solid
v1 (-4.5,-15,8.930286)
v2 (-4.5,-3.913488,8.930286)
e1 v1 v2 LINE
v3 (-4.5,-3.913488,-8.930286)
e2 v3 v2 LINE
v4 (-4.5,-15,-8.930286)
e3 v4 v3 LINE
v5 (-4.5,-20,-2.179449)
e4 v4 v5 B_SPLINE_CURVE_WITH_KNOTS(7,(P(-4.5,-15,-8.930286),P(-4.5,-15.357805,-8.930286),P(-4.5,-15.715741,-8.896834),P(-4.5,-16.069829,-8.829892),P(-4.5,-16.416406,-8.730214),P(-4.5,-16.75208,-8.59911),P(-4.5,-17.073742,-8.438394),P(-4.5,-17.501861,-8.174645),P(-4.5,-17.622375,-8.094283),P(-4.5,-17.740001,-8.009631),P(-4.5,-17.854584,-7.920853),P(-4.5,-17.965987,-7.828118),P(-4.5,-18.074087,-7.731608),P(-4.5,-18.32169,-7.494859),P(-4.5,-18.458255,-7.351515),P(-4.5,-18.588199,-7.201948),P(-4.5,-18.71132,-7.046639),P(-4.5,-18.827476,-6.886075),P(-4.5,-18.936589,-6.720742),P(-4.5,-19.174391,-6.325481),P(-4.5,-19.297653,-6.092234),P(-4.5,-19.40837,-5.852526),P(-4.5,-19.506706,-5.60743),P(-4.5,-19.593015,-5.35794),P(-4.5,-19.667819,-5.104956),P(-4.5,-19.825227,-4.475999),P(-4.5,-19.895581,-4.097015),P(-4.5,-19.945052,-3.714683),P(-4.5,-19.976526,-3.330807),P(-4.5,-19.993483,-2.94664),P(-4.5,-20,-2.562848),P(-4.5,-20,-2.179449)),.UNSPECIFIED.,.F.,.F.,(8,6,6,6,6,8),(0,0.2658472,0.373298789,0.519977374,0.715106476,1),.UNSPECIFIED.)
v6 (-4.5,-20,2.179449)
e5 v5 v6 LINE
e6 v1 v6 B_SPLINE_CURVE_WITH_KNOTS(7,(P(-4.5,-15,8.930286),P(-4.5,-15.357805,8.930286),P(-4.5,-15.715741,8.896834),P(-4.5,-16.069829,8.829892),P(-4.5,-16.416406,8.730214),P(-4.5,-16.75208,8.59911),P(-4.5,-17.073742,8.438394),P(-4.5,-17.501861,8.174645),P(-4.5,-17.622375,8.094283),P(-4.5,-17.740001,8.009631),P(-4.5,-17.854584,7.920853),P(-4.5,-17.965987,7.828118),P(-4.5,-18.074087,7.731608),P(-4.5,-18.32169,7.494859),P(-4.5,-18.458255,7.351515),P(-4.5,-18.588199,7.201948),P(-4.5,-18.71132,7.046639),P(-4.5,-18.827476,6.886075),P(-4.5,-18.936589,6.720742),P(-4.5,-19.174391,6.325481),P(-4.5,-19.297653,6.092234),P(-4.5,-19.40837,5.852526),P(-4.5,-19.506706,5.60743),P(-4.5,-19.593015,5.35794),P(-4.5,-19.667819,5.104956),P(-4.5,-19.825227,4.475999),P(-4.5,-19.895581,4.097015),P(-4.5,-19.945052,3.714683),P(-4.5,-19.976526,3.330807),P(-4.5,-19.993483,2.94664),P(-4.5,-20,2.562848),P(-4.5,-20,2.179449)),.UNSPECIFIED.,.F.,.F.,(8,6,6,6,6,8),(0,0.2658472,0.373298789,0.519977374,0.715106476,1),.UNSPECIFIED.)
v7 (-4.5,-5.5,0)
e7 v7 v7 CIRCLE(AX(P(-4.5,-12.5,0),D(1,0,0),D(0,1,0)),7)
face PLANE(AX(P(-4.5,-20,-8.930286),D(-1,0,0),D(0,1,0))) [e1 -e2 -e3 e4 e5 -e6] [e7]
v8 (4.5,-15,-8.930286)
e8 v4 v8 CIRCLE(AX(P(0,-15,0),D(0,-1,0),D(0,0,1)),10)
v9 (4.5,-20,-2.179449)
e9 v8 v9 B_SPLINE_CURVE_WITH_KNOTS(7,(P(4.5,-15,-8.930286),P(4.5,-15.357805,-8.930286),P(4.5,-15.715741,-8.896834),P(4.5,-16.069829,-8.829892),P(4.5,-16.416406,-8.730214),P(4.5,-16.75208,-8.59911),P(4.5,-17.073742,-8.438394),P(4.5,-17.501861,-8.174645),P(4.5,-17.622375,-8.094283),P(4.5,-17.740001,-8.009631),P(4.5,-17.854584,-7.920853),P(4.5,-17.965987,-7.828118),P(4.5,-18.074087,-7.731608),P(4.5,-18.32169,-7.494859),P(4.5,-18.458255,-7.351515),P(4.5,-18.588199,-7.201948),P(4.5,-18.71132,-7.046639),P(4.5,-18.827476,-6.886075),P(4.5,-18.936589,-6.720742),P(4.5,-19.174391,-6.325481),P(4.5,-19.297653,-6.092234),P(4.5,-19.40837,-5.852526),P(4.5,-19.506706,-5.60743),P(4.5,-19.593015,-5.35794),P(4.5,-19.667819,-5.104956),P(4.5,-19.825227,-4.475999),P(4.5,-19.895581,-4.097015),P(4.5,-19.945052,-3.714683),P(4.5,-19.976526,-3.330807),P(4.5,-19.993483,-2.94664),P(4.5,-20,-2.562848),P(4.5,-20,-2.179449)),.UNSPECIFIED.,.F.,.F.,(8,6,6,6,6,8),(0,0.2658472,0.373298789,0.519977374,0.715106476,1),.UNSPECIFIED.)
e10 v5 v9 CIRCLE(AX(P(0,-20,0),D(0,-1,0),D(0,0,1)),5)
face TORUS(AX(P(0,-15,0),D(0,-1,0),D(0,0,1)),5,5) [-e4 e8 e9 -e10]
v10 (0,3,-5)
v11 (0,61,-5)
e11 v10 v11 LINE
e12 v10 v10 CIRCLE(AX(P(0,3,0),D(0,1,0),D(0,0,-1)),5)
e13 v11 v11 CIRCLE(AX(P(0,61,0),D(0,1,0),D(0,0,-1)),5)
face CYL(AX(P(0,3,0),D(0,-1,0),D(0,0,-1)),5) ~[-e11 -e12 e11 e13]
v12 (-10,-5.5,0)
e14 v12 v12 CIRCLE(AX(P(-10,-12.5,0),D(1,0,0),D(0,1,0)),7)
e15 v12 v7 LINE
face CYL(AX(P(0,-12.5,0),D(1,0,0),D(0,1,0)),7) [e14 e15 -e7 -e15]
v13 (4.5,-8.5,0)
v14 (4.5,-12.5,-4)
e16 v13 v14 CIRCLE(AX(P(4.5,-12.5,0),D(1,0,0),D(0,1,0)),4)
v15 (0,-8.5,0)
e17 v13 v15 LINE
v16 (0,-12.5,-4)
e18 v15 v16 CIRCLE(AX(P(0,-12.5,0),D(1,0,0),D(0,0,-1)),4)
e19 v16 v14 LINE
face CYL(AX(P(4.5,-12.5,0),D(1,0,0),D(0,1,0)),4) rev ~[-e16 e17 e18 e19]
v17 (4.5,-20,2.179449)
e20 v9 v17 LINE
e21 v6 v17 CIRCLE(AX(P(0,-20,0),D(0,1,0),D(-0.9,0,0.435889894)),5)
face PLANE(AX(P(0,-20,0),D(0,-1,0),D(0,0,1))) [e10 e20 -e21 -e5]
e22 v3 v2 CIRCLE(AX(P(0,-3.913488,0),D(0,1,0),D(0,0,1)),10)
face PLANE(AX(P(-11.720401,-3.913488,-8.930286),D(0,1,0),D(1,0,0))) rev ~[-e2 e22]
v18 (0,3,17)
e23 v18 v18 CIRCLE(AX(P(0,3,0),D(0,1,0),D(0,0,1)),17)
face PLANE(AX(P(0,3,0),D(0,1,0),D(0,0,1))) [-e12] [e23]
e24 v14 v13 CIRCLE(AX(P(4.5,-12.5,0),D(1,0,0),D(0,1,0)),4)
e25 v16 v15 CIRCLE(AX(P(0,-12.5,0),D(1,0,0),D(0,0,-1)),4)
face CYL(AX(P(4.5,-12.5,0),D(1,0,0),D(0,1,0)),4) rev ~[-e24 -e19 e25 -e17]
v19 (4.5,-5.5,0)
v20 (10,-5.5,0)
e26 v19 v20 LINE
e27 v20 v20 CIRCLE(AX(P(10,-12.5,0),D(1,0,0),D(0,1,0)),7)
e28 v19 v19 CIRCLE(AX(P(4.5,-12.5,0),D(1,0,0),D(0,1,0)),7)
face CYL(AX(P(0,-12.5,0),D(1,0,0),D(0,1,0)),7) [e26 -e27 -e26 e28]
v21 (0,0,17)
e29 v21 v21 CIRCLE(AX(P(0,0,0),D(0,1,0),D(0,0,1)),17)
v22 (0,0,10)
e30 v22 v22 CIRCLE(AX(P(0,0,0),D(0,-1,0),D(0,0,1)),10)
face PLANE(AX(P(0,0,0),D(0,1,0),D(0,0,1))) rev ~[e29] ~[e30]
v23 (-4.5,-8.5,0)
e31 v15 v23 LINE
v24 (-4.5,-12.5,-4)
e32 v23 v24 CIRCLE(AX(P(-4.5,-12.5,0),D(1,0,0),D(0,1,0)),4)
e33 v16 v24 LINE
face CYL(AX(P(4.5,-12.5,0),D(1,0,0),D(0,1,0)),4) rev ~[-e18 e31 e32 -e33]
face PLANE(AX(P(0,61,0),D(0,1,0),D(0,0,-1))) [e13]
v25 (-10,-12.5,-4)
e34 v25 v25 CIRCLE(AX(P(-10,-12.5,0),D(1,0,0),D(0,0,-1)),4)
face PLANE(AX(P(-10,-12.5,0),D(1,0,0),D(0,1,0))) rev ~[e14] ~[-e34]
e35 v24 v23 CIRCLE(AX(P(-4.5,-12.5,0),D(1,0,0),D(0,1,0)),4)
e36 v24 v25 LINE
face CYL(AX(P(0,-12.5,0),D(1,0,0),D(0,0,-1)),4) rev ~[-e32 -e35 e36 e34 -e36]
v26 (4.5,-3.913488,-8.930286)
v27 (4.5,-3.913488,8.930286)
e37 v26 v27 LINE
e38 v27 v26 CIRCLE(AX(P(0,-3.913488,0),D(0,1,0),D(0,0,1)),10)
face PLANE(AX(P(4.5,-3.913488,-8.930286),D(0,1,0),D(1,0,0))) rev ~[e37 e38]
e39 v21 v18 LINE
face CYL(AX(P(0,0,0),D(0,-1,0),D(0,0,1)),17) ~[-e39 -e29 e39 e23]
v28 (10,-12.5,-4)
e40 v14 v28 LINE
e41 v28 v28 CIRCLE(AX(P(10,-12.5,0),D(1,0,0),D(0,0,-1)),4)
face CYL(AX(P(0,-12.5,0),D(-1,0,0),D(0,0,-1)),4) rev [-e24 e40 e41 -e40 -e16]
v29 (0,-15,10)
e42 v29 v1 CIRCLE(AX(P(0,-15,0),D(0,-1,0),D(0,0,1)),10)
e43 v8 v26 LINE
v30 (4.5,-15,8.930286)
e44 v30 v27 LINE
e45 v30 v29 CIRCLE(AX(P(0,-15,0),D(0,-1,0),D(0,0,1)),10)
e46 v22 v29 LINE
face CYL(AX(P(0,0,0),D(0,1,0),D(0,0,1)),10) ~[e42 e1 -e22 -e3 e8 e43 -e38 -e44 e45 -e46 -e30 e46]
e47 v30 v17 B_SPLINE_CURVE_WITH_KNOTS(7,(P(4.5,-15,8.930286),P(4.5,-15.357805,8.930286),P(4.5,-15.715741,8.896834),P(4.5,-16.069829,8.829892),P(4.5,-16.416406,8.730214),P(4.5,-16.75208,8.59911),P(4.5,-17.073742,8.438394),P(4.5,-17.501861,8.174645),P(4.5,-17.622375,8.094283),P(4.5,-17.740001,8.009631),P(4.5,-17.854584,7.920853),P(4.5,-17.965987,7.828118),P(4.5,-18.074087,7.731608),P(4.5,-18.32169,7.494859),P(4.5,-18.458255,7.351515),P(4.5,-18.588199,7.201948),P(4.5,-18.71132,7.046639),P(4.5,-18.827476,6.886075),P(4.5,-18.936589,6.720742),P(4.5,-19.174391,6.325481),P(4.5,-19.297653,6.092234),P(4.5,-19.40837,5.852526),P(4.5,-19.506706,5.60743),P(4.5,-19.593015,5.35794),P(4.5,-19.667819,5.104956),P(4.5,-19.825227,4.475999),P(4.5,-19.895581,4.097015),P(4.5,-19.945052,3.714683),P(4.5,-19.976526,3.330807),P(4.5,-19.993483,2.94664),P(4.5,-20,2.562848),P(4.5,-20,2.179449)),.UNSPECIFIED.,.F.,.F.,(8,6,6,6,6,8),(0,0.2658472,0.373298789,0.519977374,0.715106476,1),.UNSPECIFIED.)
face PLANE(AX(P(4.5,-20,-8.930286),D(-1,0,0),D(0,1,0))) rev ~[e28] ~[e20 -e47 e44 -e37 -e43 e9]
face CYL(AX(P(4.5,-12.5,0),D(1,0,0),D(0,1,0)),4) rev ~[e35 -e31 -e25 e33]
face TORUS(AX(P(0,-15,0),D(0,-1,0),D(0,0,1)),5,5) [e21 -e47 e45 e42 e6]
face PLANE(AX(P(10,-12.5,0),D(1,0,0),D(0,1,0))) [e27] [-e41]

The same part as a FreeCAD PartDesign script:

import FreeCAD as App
import Part
import Sketcher
from FreeCAD import Vector
Q = App.Units.Quantity


def edges_at(feature, points):
    """Names of the edges that pass closest to the given points."""
    edges = feature.Shape.Edges
    near = lambda p: min(range(len(edges)), key=lambda i: edges[i].distToShape(Part.Vertex(*p))[0])
    return sorted({f"Edge{near(p) + 1}" for p in points})


def add_polygon(sketch, points):
    """Adds a closed chain of lines whose ends are joined by coincident constraints."""
    first, n = sketch.GeometryCount, len(points)
    for a, b in zip(points, points[1:] + points[:1]):
        sketch.addGeometry(Part.LineSegment(App.Vector(*a, 0), App.Vector(*b, 0)), False)
    for i in range(n):
        sketch.addConstraint(Sketcher.Constraint("Coincident", first + i, 2, first + (i + 1) % n, 1))

doc = App.newDocument("Part")
body = doc.addObject("PartDesign::Body", "Body")

# Sketch on XZ plane
sketch1 = body.newObject("Sketcher::SketchObject", "Sketch")
sketch1.AttachmentSupport = (doc.getObject("XZ_Plane"), [""])
sketch1.MapMode = "FlatFace"
sketch1.addGeometry(Part.Circle(Vector(0, 0, 0), Vector(0, 0, 1), 17), False)
sketch1.addConstraint([
    Sketcher.Constraint("Coincident", 0, 3, -1, 1),
    Sketcher.Constraint("Diameter", 0, Q("34 mm")),
])
pad1 = body.newObject("PartDesign::Pad", "Pad")
pad1.Profile = sketch1
pad1.Length = 3
pad1.Reversed = True

# Sketch on XZ plane
sketch2 = body.newObject("Sketcher::SketchObject", "Sketch001")
sketch2.AttachmentSupport = (doc.getObject("XZ_Plane"), [""])
sketch2.MapMode = "FlatFace"
sketch2.AttachmentOffset = App.Placement(Vector(0, 0, -3), App.Rotation())
sketch2.addGeometry(Part.Circle(Vector(0, 0, 0), Vector(0, 0, 1), 5), False)
sketch2.addConstraint([
    Sketcher.Constraint("Coincident", 0, 3, -1, 1),
    Sketcher.Constraint("Diameter", 0, Q("10 mm")),
])
pad2 = body.newObject("PartDesign::Pad", "Pad001")
pad2.Profile = sketch2
pad2.Length = 58
pad2.Reversed = True

# Sketch on XZ plane
sketch3 = body.newObject("Sketcher::SketchObject", "Sketch002")
sketch3.AttachmentSupport = (doc.getObject("XZ_Plane"), [""])
sketch3.MapMode = "FlatFace"
sketch3.addGeometry(Part.Circle(Vector(0, 0, 0), Vector(0, 0, 1), 10), False)
sketch3.addConstraint([
    Sketcher.Constraint("Coincident", 0, 3, -1, 1),
    Sketcher.Constraint("Diameter", 0, Q("20 mm")),
])
pad3 = body.newObject("PartDesign::Pad", "Pad002")
pad3.Profile = sketch3
pad3.Length = 20
doc.recompute()

fillet = body.newObject("PartDesign::Fillet", "Fillet")
fillet.Base = (pad3, edges_at(pad3, [(0, -20, -10)]))
fillet.Radius = 5

# Sketch on XY plane
sketch4 = body.newObject("Sketcher::SketchObject", "Sketch003")
sketch4.AttachmentSupport = (doc.getObject("XY_Plane"), [""])
sketch4.MapMode = "FlatFace"
sketch4.AttachmentOffset = App.Placement(Vector(0, 0, -8.930286), App.Rotation())
add_polygon(sketch4, [(5, -4), (5, -20), (12, -20), (12, -4)])  # lines 0-3
add_polygon(sketch4, [(-12, -4), (-12, -20), (-5, -20), (-5, -4)])  # lines 4-7
sketch4.addConstraint([
    Sketcher.Constraint("Vertical", 0),
    Sketcher.Constraint("Horizontal", 1),
    Sketcher.Constraint("Vertical", 2),
    Sketcher.Constraint("Horizontal", 3),
    Sketcher.Constraint("Vertical", 4),
    Sketcher.Constraint("Horizontal", 5),
    Sketcher.Constraint("Vertical", 6),
    Sketcher.Constraint("Horizontal", 7),
    Sketcher.Constraint("Symmetric", 1, 2, 4, 2, -2),
    Sketcher.Constraint("Symmetric", 3, 2, 6, 2, -2),
    Sketcher.Constraint("DistanceY", 0, 2, -1, 1, Q("20 mm")),
    Sketcher.Constraint("DistanceX", 5, 2, 0, 2, Q("9 mm")),
    Sketcher.Constraint("DistanceX", 1, 1, 1, 2, Q("7.220401 mm")),
    Sketcher.Constraint("DistanceY", 0, 2, 0, 1, Q("16.086512 mm")),
])
pocket1 = body.newObject("PartDesign::Pocket", "Pocket")
pocket1.Profile = sketch4
pocket1.Length = 17.860572
pocket1.Reversed = True

# Sketch on YZ plane
sketch5 = body.newObject("Sketcher::SketchObject", "Sketch004")
sketch5.AttachmentSupport = (doc.getObject("YZ_Plane"), [""])
sketch5.MapMode = "FlatFace"
sketch5.AttachmentOffset = App.Placement(Vector(0, 0, 4.5), App.Rotation())
sketch5.addGeometry(Part.Circle(Vector(-12.5, 0, 0), Vector(0, 0, 1), 4), False)
sketch5.addConstraint([
    Sketcher.Constraint("PointOnObject", 0, 3, -1),
    Sketcher.Constraint("Diameter", 0, Q("8 mm")),
    Sketcher.Constraint("DistanceX", 0, 3, -1, 1, Q("12.5 mm")),
])
pocket2 = body.newObject("PartDesign::Pocket", "Pocket001")
pocket2.Profile = sketch5
pocket2.Length = 20

# Sketch on YZ plane
sketch6 = body.newObject("Sketcher::SketchObject", "Sketch005")
sketch6.AttachmentSupport = (doc.getObject("YZ_Plane"), [""])
sketch6.MapMode = "FlatFace"
sketch6.addGeometry([
    Part.Circle(Vector(-12.5, 0, 0), Vector(0, 0, 1), 7),
    Part.Circle(Vector(-12.5, 0, 0), Vector(0, 0, 1), 4),
], False)
sketch6.addConstraint([
    Sketcher.Constraint("Coincident", 1, 3, 0, 3),
    Sketcher.Constraint("PointOnObject", 0, 3, -1),
    Sketcher.Constraint("Diameter", 0, Q("14 mm")),
    Sketcher.Constraint("Diameter", 1, Q("8 mm")),
    Sketcher.Constraint("DistanceX", 0, 3, -1, 1, Q("12.5 mm")),
])
pad4 = body.newObject("PartDesign::Pad", "Pad003")
pad4.Profile = sketch6
pad4.Length = 20
pad4.Midplane = True

doc.recompute()
